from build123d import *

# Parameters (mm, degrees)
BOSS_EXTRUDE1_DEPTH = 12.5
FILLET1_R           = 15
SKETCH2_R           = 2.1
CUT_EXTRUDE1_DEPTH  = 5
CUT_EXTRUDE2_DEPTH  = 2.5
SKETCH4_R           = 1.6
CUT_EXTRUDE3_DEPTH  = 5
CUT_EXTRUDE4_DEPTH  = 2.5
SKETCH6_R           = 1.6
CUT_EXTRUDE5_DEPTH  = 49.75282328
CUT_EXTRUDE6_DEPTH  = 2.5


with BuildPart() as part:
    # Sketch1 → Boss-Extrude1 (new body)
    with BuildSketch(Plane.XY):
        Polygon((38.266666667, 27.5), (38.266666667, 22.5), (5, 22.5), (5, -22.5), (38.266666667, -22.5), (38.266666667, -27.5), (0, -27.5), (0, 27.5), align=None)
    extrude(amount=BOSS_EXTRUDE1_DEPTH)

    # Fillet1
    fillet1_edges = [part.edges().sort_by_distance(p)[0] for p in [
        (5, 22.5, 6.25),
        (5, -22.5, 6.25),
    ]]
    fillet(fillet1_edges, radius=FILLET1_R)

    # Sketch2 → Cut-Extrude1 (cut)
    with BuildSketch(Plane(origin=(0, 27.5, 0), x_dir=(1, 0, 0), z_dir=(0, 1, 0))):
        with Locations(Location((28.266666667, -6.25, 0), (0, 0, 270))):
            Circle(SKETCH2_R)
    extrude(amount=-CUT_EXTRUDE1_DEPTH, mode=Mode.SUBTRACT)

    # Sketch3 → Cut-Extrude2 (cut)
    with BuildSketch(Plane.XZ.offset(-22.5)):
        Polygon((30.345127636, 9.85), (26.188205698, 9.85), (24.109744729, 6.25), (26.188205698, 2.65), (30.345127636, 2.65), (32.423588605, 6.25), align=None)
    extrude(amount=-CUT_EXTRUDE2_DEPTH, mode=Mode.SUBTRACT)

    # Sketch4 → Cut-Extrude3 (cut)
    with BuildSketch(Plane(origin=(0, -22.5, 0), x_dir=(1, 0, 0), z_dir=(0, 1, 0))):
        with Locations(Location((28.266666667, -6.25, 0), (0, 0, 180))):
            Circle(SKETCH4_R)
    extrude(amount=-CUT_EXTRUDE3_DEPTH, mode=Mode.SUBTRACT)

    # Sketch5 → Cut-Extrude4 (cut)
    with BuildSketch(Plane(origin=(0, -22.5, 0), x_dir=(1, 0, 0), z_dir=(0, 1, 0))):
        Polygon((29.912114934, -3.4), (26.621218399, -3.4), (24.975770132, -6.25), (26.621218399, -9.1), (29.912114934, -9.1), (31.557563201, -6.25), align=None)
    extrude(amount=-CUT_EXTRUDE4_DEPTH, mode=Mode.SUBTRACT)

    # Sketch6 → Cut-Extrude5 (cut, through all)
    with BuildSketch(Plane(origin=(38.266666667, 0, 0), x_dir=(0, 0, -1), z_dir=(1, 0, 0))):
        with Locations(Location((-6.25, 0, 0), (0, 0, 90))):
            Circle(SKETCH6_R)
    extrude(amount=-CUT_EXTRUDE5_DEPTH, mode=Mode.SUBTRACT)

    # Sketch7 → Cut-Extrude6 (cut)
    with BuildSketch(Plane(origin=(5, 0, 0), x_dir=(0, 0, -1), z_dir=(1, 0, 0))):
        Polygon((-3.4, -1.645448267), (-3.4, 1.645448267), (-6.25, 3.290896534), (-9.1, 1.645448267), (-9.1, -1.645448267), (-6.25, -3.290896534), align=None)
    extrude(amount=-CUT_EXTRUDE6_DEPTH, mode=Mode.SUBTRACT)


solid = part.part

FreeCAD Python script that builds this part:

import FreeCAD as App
import Part
import Sketcher
Q = App.Units.Quantity


def edges_at(feature, points):
    """Names of the edges that pass closest to the given points."""
    edges = feature.Shape.Edges
    near = lambda p: min(range(len(edges)), key=lambda i: edges[i].distToShape(Part.Vertex(*p))[0])
    return sorted({f"Edge{near(p) + 1}" for p in points})


def add_polygon(sketch, points):
    """Adds a closed chain of lines whose ends are joined by coincident constraints."""
    first, n = sketch.GeometryCount, len(points)
    for a, b in zip(points, points[1:] + points[:1]):
        sketch.addGeometry(Part.LineSegment(App.Vector(*a, 0), App.Vector(*b, 0)), False)
    for i in range(n):
        sketch.addConstraint(Sketcher.Constraint("Coincident", first + i, 2, first + (i + 1) % n, 1))

doc = App.newDocument("Part")
body = doc.addObject("PartDesign::Body", "Body")

# Sketch on XY plane
sketch1 = body.newObject("Sketcher::SketchObject", "Sketch")
sketch1.AttachmentSupport = (doc.getObject("XY_Plane"), [""])
sketch1.MapMode = "FlatFace"
add_polygon(sketch1, [(38.266667, 22.5), (38.266667, 27.5), (0, 27.5), (0, -27.5), (38.266667, -27.5), (38.266667, -22.5), (5, -22.5), (5, 22.5)])  # lines 0-7
sketch1.addConstraint([
    Sketcher.Constraint("Vertical", 0),
    Sketcher.Constraint("Horizontal", 1),
    Sketcher.Constraint("Vertical", 2),
    Sketcher.Constraint("Horizontal", 3),
    Sketcher.Constraint("Vertical", 4),
    Sketcher.Constraint("Horizontal", 5),
    Sketcher.Constraint("Vertical", 6),
    Sketcher.Constraint("Horizontal", 7),
    Sketcher.Constraint("Symmetric", 1, 2, 2, 2, -1, 1),
    Sketcher.Constraint("Symmetric", 4, 2, 7, 2, -1),
    Sketcher.Constraint("DistanceY", 0, 1, 0, 2, Q("5 mm")),
    Sketcher.Constraint("DistanceY", 2, 2, 2, 1, Q("55 mm")),
    Sketcher.Constraint("DistanceX", -1, 1, 5, 2, Q("5 mm")),
    Sketcher.Constraint("DistanceX", 1, 2, 1, 1, Q("38.266667 mm")),
])
pad1 = body.newObject("PartDesign::Pad", "Pad")
pad1.Profile = sketch1
pad1.Length = 12.5
doc.recompute()

fillet = body.newObject("PartDesign::Fillet", "Fillet")
fillet.Base = (pad1, edges_at(pad1, [(5, 22.5, 6.25), (5, -22.5, 6.25)]))
fillet.Radius = 15

# Sketch on XZ plane
sketch2 = body.newObject("Sketcher::SketchObject", "Sketch001")
sketch2.AttachmentSupport = (doc.getObject("XZ_Plane"), [""])
sketch2.MapMode = "FlatFace"
sketch2.AttachmentOffset = App.Placement(App.Vector(0, 0, -27.5), App.Rotation())
sketch2.addGeometry(Part.Circle(App.Vector(28.266667, 6.25, 0), App.Vector(0, 0, 1), 2.1), False)
sketch2.addConstraint([
    Sketcher.Constraint("Diameter", 0, Q("4.2 mm")),
    Sketcher.Constraint("DistanceY", -1, 1, 0, 3, Q("6.25 mm")),
    Sketcher.Constraint("DistanceX", -1, 1, 0, 3, Q("28.266667 mm")),
])
pocket1 = body.newObject("PartDesign::Pocket", "Pocket")
pocket1.Profile = sketch2
pocket1.Length = 5
pocket1.Reversed = True

# Sketch on XZ plane
sketch3 = body.newObject("Sketcher::SketchObject", "Sketch002")
sketch3.AttachmentSupport = (doc.getObject("XZ_Plane"), [""])
sketch3.MapMode = "FlatFace"
sketch3.AttachmentOffset = App.Placement(App.Vector(0, 0, -22.5), App.Rotation())
add_polygon(sketch3, [(30.345128, 9.85), (26.188206, 9.85), (24.109745, 6.25), (26.188206, 2.65), (30.345128, 2.65), (32.423589, 6.25)])  # lines 0-5
sketch3.addConstraint([
    Sketcher.Constraint("Horizontal", 0),
    Sketcher.Constraint("Horizontal", 3),
    Sketcher.Constraint("Parallel", 1, 4),
    Sketcher.Constraint("Parallel", 2, 5),
    Sketcher.Constraint("Horizontal", 1, 2, 4, 2),
    Sketcher.Constraint("Vertical", 0, 2, 2, 2),
    Sketcher.Constraint("Vertical", 3, 2, 5, 2),
    Sketcher.Constraint("Angle", 1, Q("-120 deg")),
    Sketcher.Constraint("DistanceY", 1, 2, 0, 2, Q("3.6 mm")),
    Sketcher.Constraint("DistanceY", -1, 1, 0, 2, Q("9.85 mm")),
    Sketcher.Constraint("DistanceX", 0, 2, 0, 1, Q("4.156922 mm")),
    Sketcher.Constraint("DistanceX", -1, 1, 4, 2, Q("32.423589 mm")),
])
pocket2 = body.newObject("PartDesign::Pocket", "Pocket001")
pocket2.Profile = sketch3
pocket2.Length = 2.5

# Sketch on XZ plane
sketch4 = body.newObject("Sketcher::SketchObject", "Sketch003")
sketch4.AttachmentSupport = (doc.getObject("XZ_Plane"), [""])
sketch4.MapMode = "FlatFace"
sketch4.AttachmentOffset = App.Placement(App.Vector(0, 0, 22.5), App.Rotation())
sketch4.addGeometry(Part.Circle(App.Vector(28.266667, 6.25, 0), App.Vector(0, 0, 1), 1.6), False)
sketch4.addConstraint([
    Sketcher.Constraint("Diameter", 0, Q("3.2 mm")),
    Sketcher.Constraint("DistanceY", -1, 1, 0, 3, Q("6.25 mm")),
    Sketcher.Constraint("DistanceX", -1, 1, 0, 3, Q("28.266667 mm")),
])
pocket3 = body.newObject("PartDesign::Pocket", "Pocket002")
pocket3.Profile = sketch4
pocket3.Length = 5
pocket3.Reversed = True

# Sketch on XZ plane
sketch5 = body.newObject("Sketcher::SketchObject", "Sketch004")
sketch5.AttachmentSupport = (doc.getObject("XZ_Plane"), [""])
sketch5.MapMode = "FlatFace"
sketch5.AttachmentOffset = App.Placement(App.Vector(0, 0, 22.5), App.Rotation())
add_polygon(sketch5, [(29.912115, 3.4), (26.621218, 3.4), (24.97577, 6.25), (26.621218, 9.1), (29.912115, 9.1), (31.557563, 6.25)])  # lines 0-5
sketch5.addConstraint([
    Sketcher.Constraint("Horizontal", 0),
    Sketcher.Constraint("Horizontal", 3),
    Sketcher.Constraint("Parallel", 1, 4),
    Sketcher.Constraint("Parallel", 2, 5),
    Sketcher.Constraint("Horizontal", 1, 2, 4, 2),
    Sketcher.Constraint("Vertical", 0, 2, 2, 2),
    Sketcher.Constraint("Vertical", 3, 2, 5, 2),
    Sketcher.Constraint("Angle", 1, Q("120 deg")),
    Sketcher.Constraint("DistanceY", -1, 1, 0, 2, Q("3.4 mm")),
    Sketcher.Constraint("DistanceY", -1, 1, 2, 2, Q("9.1 mm")),
    Sketcher.Constraint("DistanceX", 0, 2, 0, 1, Q("3.290897 mm")),
    Sketcher.Constraint("DistanceX", -1, 1, 0, 2, Q("26.621218 mm")),
])
pocket4 = body.newObject("PartDesign::Pocket", "Pocket003")
pocket4.Profile = sketch5
pocket4.Length = 2.5
pocket4.Reversed = True

# Sketch on YZ plane
sketch6 = body.newObject("Sketcher::SketchObject", "Sketch005")
sketch6.AttachmentSupport = (doc.getObject("YZ_Plane"), [""])
sketch6.MapMode = "FlatFace"
sketch6.AttachmentOffset = App.Placement(App.Vector(0, 0, 38.266667), App.Rotation())
sketch6.addGeometry(Part.Circle(App.Vector(0, 6.25, 0), App.Vector(0, 0, 1), 1.6), False)
sketch6.addConstraint([
    Sketcher.Constraint("PointOnObject", 0, 3, -2),
    Sketcher.Constraint("Diameter", 0, Q("3.2 mm")),
    Sketcher.Constraint("DistanceY", -1, 1, 0, 3, Q("6.25 mm")),
])
pocket5 = body.newObject("PartDesign::Pocket", "Pocket004")
pocket5.Profile = sketch6
pocket5.Type = "ThroughAll"

# Sketch on YZ plane
sketch7 = body.newObject("Sketcher::SketchObject", "Sketch006")
sketch7.AttachmentSupport = (doc.getObject("YZ_Plane"), [""])
sketch7.MapMode = "FlatFace"
sketch7.AttachmentOffset = App.Placement(App.Vector(0, 0, 5), App.Rotation())
add_polygon(sketch7, [(-1.645448, 3.4), (1.645448, 3.4), (3.290897, 6.25), (1.645448, 9.1), (-1.645448, 9.1), (-3.290897, 6.25)])  # lines 0-5
sketch7.addConstraint([
    Sketcher.Constraint("Horizontal", 0),
    Sketcher.Constraint("Horizontal", 3),
    Sketcher.Constraint("Symmetric", 1, 2, 4, 2, -2),
    Sketcher.Constraint("Parallel", 1, 4),
    Sketcher.Constraint("Parallel", 2, 5),
    Sketcher.Constraint("Vertical", 0, 2, 2, 2),
    Sketcher.Constraint("Vertical", 3, 2, 5, 2),
    Sketcher.Constraint("Angle", 1, Q("60 deg")),
    Sketcher.Constraint("DistanceY", -1, 1, 0, 2, Q("3.4 mm")),
    Sketcher.Constraint("DistanceY", -1, 1, 2, 2, Q("9.1 mm")),
    Sketcher.Constraint("DistanceX", 0, 1, 0, 2, Q("3.290897 mm")),
])
pocket6 = body.newObject("PartDesign::Pocket", "Pocket005")
pocket6.Profile = sketch7
pocket6.Length = 2.5

doc.recompute()
